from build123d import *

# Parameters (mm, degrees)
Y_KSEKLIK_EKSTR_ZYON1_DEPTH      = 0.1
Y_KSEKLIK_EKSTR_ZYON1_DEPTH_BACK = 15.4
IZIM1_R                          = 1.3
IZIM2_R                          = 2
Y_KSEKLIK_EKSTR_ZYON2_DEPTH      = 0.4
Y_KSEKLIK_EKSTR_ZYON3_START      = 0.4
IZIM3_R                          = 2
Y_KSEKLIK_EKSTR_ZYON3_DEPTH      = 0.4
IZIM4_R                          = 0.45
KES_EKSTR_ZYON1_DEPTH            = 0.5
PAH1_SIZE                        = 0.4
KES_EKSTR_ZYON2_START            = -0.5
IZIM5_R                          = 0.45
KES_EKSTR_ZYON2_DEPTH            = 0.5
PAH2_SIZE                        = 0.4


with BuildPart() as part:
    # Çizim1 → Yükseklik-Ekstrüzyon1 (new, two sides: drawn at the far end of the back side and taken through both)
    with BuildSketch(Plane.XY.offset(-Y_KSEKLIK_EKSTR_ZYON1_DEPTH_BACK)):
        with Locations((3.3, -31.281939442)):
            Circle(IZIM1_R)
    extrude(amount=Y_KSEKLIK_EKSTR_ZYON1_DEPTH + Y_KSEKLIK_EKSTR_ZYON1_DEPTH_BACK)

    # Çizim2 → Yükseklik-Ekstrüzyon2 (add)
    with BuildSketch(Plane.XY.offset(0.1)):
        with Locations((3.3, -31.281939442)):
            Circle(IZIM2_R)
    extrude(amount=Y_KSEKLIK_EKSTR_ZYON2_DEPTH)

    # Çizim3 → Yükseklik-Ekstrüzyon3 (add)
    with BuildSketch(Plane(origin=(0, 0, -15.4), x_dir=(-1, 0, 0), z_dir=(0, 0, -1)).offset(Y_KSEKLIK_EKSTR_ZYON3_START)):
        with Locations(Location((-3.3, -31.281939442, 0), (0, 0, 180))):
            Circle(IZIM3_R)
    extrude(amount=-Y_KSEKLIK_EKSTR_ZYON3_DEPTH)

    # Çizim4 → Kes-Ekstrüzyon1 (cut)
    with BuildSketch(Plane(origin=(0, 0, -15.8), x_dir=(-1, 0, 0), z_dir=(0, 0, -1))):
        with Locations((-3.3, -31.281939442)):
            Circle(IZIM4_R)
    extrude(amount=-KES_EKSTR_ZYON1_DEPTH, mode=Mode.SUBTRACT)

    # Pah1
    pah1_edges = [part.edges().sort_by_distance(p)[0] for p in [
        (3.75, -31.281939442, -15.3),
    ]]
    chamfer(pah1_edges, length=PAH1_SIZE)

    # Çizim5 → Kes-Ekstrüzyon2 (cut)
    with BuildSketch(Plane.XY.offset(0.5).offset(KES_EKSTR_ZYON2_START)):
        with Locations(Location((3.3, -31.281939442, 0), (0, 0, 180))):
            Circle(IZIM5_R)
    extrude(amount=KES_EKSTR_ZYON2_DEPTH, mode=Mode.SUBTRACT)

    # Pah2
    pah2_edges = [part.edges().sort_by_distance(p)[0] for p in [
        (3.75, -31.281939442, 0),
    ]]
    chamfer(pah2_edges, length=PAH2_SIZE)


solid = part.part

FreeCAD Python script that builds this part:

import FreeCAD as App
import Part
import Sketcher
from FreeCAD import Vector
Q = App.Units.Quantity


def edges_at(feature, points):
    """Names of the edges that pass closest to the given points."""
    edges = feature.Shape.Edges
    near = lambda p: min(range(len(edges)), key=lambda i: edges[i].distToShape(Part.Vertex(*p))[0])
    return sorted({f"Edge{near(p) + 1}" for p in points})

doc = App.newDocument("Part")
body = doc.addObject("PartDesign::Body", "Body")

# Sketch on XY plane
sketch1 = body.newObject("Sketcher::SketchObject", "Sketch")
sketch1.AttachmentSupport = (doc.getObject("XY_Plane"), [""])
sketch1.MapMode = "FlatFace"
sketch1.addGeometry(Part.Circle(Vector(3.3, -31.281939, 0), Vector(0, 0, 1), 1.3), False)
sketch1.addConstraint(Sketcher.Constraint("Diameter", 0, Q("2.6 mm")))
sketch1.addConstraint(Sketcher.Constraint("DistanceX", -1, 1, 0, 3, Q("3.3 mm")))
sketch1.addConstraint(Sketcher.Constraint("DistanceY", 0, 3, -1, 1, Q("31.281939 mm")))
pad1 = body.newObject("PartDesign::Pad", "Pad")
pad1.Profile = sketch1
pad1.Type = "TwoLengths"
pad1.Length = 0.1
pad1.Length2 = 15.4

# Sketch on XY plane
sketch2 = body.newObject("Sketcher::SketchObject", "Sketch001")
sketch2.AttachmentSupport = (doc.getObject("XY_Plane"), [""])
sketch2.MapMode = "FlatFace"
sketch2.AttachmentOffset = App.Placement(Vector(0, 0, 0.1), App.Rotation())
sketch2.addGeometry(Part.Circle(Vector(3.3, -31.281939, 0), Vector(0, 0, 1), 2), False)
sketch2.addConstraint(Sketcher.Constraint("Diameter", 0, Q("4 mm")))
sketch2.addConstraint(Sketcher.Constraint("DistanceX", -1, 1, 0, 3, Q("3.3 mm")))
sketch2.addConstraint(Sketcher.Constraint("DistanceY", 0, 3, -1, 1, Q("31.281939 mm")))
pad2 = body.newObject("PartDesign::Pad", "Pad001")
pad2.Profile = sketch2
pad2.Length = 0.4

# Sketch on XY plane
sketch3 = body.newObject("Sketcher::SketchObject", "Sketch002")
sketch3.AttachmentSupport = (doc.getObject("XY_Plane"), [""])
sketch3.MapMode = "FlatFace"
sketch3.AttachmentOffset = App.Placement(Vector(0, 0, -15.8), App.Rotation())
sketch3.addGeometry(Part.Circle(Vector(3.3, -31.281939, 0), Vector(0, 0, 1), 2), False)
sketch3.addConstraint(Sketcher.Constraint("Diameter", 0, Q("4 mm")))
sketch3.addConstraint(Sketcher.Constraint("DistanceX", -1, 1, 0, 3, Q("3.3 mm")))
sketch3.addConstraint(Sketcher.Constraint("DistanceY", 0, 3, -1, 1, Q("31.281939 mm")))
pad3 = body.newObject("PartDesign::Pad", "Pad002")
pad3.Profile = sketch3
pad3.Length = 0.4

# Sketch on XY plane
sketch4 = body.newObject("Sketcher::SketchObject", "Sketch003")
sketch4.AttachmentSupport = (doc.getObject("XY_Plane"), [""])
sketch4.MapMode = "FlatFace"
sketch4.AttachmentOffset = App.Placement(Vector(0, 0, -15.8), App.Rotation())
sketch4.addGeometry(Part.Circle(Vector(3.3, -31.281939, 0), Vector(0, 0, 1), 0.45), False)
sketch4.addConstraint(Sketcher.Constraint("Diameter", 0, Q("0.9 mm")))
sketch4.addConstraint(Sketcher.Constraint("DistanceX", -1, 1, 0, 3, Q("3.3 mm")))
sketch4.addConstraint(Sketcher.Constraint("DistanceY", 0, 3, -1, 1, Q("31.281939 mm")))
pocket1 = body.newObject("PartDesign::Pocket", "Pocket")
pocket1.Profile = sketch4
pocket1.Length = 0.5
pocket1.Reversed = True
doc.recompute()

chamfer = body.newObject("PartDesign::Chamfer", "Chamfer")
chamfer.Base = (pocket1, edges_at(pocket1, [(3.75, -31.282, -15.3)]))
chamfer.Size = 0.4

# Sketch on XY plane
sketch5 = body.newObject("Sketcher::SketchObject", "Sketch004")
sketch5.AttachmentSupport = (doc.getObject("XY_Plane"), [""])
sketch5.MapMode = "FlatFace"
sketch5.addGeometry(Part.Circle(Vector(3.3, -31.281939, 0), Vector(0, 0, 1), 0.45), False)
sketch5.addConstraint(Sketcher.Constraint("Diameter", 0, Q("0.9 mm")))
sketch5.addConstraint(Sketcher.Constraint("DistanceX", -1, 1, 0, 3, Q("3.3 mm")))
sketch5.addConstraint(Sketcher.Constraint("DistanceY", 0, 3, -1, 1, Q("31.281939 mm")))
pocket2 = body.newObject("PartDesign::Pocket", "Pocket001")
pocket2.Profile = sketch5
pocket2.Length = 0.5
pocket2.Reversed = True
doc.recompute()

chamfer2 = body.newObject("PartDesign::Chamfer", "Chamfer001")
chamfer2.Base = (pocket2, edges_at(pocket2, [(3.75, -31.282, 0)]))
chamfer2.Size = 0.4

doc.recompute()
